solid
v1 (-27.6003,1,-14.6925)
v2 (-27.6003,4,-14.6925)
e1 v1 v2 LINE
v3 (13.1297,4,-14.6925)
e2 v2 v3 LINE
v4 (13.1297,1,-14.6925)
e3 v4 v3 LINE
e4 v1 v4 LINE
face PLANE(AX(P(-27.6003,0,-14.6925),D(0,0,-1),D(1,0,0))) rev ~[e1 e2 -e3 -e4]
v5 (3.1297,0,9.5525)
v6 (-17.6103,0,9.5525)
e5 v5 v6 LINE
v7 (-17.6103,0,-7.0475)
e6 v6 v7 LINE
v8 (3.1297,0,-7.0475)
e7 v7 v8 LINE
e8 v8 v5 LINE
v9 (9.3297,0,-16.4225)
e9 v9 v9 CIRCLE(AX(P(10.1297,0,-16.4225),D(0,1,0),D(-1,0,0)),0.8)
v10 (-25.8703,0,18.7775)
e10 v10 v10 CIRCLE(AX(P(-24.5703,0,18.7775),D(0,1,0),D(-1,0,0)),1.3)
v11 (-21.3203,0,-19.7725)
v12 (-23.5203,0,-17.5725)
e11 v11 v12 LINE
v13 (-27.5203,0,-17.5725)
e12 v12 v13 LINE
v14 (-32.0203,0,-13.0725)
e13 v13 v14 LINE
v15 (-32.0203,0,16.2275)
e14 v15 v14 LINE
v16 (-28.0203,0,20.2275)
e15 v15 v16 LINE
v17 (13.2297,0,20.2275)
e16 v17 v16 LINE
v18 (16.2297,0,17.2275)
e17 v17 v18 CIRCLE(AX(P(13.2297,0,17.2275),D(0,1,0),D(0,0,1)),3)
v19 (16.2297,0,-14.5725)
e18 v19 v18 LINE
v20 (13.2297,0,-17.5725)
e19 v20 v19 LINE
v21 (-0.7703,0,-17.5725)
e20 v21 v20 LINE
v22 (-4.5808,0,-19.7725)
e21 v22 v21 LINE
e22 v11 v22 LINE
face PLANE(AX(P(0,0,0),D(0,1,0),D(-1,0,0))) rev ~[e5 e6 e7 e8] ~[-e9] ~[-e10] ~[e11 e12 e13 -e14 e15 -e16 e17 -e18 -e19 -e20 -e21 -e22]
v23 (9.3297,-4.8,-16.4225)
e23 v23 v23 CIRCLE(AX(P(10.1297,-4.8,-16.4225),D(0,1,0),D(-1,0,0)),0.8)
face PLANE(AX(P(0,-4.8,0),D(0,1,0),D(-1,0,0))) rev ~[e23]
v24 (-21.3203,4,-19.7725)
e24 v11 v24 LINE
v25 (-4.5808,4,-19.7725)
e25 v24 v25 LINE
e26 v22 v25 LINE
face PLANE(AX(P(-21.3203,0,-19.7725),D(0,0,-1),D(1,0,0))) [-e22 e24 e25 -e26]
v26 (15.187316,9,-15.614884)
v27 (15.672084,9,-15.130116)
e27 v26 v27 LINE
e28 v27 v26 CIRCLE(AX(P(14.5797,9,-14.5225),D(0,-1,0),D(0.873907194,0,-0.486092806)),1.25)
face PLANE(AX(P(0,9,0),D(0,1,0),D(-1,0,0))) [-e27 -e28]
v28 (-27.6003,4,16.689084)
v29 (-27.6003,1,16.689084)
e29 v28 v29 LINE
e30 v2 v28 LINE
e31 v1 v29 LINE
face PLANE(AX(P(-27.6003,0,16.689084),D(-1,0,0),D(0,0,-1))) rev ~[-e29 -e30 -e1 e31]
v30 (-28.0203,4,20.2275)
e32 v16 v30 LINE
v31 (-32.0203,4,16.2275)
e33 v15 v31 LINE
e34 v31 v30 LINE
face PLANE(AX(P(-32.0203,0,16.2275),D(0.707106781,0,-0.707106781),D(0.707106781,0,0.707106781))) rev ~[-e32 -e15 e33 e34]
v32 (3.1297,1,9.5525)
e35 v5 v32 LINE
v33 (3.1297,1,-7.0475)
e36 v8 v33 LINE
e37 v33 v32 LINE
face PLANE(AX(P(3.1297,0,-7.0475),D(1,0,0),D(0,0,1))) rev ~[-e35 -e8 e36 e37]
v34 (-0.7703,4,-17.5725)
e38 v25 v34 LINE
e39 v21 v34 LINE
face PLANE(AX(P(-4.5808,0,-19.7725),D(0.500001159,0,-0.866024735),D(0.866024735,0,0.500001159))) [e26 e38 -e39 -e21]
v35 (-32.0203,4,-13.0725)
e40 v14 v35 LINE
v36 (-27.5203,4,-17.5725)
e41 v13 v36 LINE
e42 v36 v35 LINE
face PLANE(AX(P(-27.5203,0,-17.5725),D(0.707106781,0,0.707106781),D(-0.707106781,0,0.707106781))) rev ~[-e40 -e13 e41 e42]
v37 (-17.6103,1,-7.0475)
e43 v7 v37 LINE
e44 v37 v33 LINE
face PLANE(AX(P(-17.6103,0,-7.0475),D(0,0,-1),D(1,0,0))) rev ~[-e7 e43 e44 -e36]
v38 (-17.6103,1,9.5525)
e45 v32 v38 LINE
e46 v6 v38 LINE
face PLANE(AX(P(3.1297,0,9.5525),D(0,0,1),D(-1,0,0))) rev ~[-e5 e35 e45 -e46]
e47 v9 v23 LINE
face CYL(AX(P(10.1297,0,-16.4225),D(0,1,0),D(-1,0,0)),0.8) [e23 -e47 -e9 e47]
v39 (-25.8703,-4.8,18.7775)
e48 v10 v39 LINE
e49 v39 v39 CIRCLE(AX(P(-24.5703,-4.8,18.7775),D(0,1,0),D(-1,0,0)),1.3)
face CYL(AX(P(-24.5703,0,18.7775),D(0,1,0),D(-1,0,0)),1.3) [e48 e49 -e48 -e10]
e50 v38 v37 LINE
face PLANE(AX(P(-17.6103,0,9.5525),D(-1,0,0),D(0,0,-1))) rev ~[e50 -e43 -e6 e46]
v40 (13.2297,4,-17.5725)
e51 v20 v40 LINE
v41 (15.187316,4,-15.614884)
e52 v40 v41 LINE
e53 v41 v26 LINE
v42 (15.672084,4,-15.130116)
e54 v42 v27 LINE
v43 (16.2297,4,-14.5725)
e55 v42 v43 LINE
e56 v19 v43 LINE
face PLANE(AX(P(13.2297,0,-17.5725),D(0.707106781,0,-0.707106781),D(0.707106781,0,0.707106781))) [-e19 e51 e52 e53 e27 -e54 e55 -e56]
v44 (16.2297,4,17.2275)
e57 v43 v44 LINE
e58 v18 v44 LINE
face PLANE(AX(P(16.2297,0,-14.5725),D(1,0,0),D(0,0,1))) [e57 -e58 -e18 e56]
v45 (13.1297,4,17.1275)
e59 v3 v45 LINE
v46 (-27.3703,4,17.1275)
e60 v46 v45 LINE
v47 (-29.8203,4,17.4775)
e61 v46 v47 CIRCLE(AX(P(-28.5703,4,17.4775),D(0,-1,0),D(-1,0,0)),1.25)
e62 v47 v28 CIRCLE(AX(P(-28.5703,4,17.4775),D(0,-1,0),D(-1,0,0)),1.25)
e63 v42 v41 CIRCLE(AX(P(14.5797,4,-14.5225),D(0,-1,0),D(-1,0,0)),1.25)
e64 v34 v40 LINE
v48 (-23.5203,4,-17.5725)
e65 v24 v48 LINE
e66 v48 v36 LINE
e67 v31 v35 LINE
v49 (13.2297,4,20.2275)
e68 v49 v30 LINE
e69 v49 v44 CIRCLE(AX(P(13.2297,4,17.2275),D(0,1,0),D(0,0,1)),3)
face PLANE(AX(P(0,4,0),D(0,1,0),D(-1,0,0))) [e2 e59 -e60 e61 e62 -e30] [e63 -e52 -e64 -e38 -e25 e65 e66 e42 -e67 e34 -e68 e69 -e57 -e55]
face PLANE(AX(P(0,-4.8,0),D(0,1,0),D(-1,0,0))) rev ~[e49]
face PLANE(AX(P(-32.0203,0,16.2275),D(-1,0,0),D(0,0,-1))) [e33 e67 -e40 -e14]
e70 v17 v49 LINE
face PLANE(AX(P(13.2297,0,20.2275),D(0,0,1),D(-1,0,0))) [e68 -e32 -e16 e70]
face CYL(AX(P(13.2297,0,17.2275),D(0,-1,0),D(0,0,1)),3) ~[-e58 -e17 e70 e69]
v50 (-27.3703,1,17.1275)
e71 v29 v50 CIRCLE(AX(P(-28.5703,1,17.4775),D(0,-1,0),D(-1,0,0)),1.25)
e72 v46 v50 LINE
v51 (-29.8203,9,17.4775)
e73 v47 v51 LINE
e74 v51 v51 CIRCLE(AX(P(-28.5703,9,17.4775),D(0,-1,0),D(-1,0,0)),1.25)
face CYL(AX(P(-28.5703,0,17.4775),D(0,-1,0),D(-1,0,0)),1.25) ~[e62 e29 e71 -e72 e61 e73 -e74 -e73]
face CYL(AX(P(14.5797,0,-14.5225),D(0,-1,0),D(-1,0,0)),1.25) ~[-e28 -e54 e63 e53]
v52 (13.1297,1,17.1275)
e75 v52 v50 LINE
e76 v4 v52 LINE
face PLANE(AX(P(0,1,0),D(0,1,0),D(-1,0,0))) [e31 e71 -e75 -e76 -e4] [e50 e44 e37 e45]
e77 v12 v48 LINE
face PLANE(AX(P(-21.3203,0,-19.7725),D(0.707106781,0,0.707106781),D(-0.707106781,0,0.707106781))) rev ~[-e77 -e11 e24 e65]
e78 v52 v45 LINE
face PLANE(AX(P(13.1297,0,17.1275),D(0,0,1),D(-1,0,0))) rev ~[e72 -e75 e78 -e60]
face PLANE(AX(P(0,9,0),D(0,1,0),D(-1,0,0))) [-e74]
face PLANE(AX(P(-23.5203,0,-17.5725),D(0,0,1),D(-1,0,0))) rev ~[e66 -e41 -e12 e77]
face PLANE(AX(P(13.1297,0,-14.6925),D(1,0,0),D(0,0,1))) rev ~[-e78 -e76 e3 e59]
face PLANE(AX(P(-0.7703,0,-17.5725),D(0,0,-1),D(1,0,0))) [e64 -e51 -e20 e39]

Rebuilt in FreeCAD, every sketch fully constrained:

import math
import FreeCAD as App
import Part
import Sketcher
Q = App.Units.Quantity

doc = App.newDocument("Part")
body = doc.addObject("PartDesign::Body", "Body")

# Sketch on XZ plane
sketch1 = doc.addObject("Sketcher::SketchObject", "Sketch")
body.addObject(sketch1)
sketch1.AttachmentSupport = (doc.XZ_Plane, [""])
sketch1.MapMode = "FlatFace"
sketch1.addGeometry(Part.LineSegment(App.Vector(-4.6, -19.8, 0), App.Vector(-21.3, -19.8, 0)), False)
sketch1.addGeometry(Part.LineSegment(App.Vector(-21.3, -19.8, 0), App.Vector(-23.5, -17.6, 0)), False)
sketch1.addGeometry(Part.LineSegment(App.Vector(-23.5, -17.6, 0), App.Vector(-27.5, -17.6, 0)), False)
sketch1.addGeometry(Part.LineSegment(App.Vector(-27.5, -17.6, 0), App.Vector(-32, -13.1, 0)), False)
sketch1.addGeometry(Part.LineSegment(App.Vector(-32, -13.1, 0), App.Vector(-32, 16.2, 0)), False)
sketch1.addGeometry(Part.LineSegment(App.Vector(-32, 16.2, 0), App.Vector(-28, 20.2, 0)), False)
sketch1.addGeometry(Part.LineSegment(App.Vector(-28, 20.2, 0), App.Vector(13.2, 20.2, 0)), False)
sketch1.addGeometry(Part.ArcOfCircle(Part.Circle(App.Vector(13.2, 17.2, 0), App.Vector(0, 0, 1), 3), math.radians(0), math.radians(90)), False)
sketch1.addGeometry(Part.LineSegment(App.Vector(16.2, 17.2, 0), App.Vector(16.2, -14.6, 0)), False)
sketch1.addGeometry(Part.LineSegment(App.Vector(16.2, -14.6, 0), App.Vector(13.2, -17.6, 0)), False)
sketch1.addGeometry(Part.LineSegment(App.Vector(13.2, -17.6, 0), App.Vector(-0.8, -17.6, 0)), False)
sketch1.addGeometry(Part.LineSegment(App.Vector(-0.8, -17.6, 0), App.Vector(-4.6, -19.8, 0)), False)
sketch1.addGeometry(Part.LineSegment(App.Vector(13.1, -14.7, 0), App.Vector(13.1, 17.1, 0)), False)
sketch1.addGeometry(Part.LineSegment(App.Vector(13.1, 17.1, 0), App.Vector(-27.6, 17.1, 0)), False)
sketch1.addGeometry(Part.LineSegment(App.Vector(-27.6, 17.1, 0), App.Vector(-27.6, -14.7, 0)), False)
sketch1.addGeometry(Part.LineSegment(App.Vector(-27.6, -14.7, 0), App.Vector(13.1, -14.7, 0)), False)
sketch1.addConstraint(Sketcher.Constraint("Coincident", 0, 2, 1, 1))
sketch1.addConstraint(Sketcher.Constraint("Coincident", 1, 2, 2, 1))
sketch1.addConstraint(Sketcher.Constraint("Coincident", 2, 2, 3, 1))
sketch1.addConstraint(Sketcher.Constraint("Coincident", 3, 2, 4, 1))
sketch1.addConstraint(Sketcher.Constraint("Coincident", 4, 2, 5, 1))
sketch1.addConstraint(Sketcher.Constraint("Coincident", 5, 2, 6, 1))
sketch1.addConstraint(Sketcher.Constraint("Tangent", 6, 2, 7, 2))
sketch1.addConstraint(Sketcher.Constraint("Tangent", 7, 1, 8, 1))
sketch1.addConstraint(Sketcher.Constraint("Coincident", 8, 2, 9, 1))
sketch1.addConstraint(Sketcher.Constraint("Coincident", 9, 2, 10, 1))
sketch1.addConstraint(Sketcher.Constraint("Coincident", 10, 2, 11, 1))
sketch1.addConstraint(Sketcher.Constraint("Coincident", 11, 2, 0, 1))
sketch1.addConstraint(Sketcher.Constraint("Coincident", 12, 2, 13, 1))
sketch1.addConstraint(Sketcher.Constraint("Coincident", 13, 2, 14, 1))
sketch1.addConstraint(Sketcher.Constraint("Coincident", 14, 2, 15, 1))
sketch1.addConstraint(Sketcher.Constraint("Coincident", 15, 2, 12, 1))
sketch1.addConstraint(Sketcher.Constraint("Horizontal", 0))
sketch1.addConstraint(Sketcher.Constraint("Horizontal", 2))
sketch1.addConstraint(Sketcher.Constraint("Vertical", 4))
sketch1.addConstraint(Sketcher.Constraint("Horizontal", 6))
sketch1.addConstraint(Sketcher.Constraint("Vertical", 8))
sketch1.addConstraint(Sketcher.Constraint("Horizontal", 10))
sketch1.addConstraint(Sketcher.Constraint("Vertical", 12))
sketch1.addConstraint(Sketcher.Constraint("Horizontal", 13))
sketch1.addConstraint(Sketcher.Constraint("Vertical", 14))
sketch1.addConstraint(Sketcher.Constraint("Horizontal", 15))
sketch1.addConstraint(Sketcher.Constraint("Parallel", 1, 3))
sketch1.addConstraint(Sketcher.Constraint("Perpendicular", 3, 5))
sketch1.addConstraint(Sketcher.Constraint("Parallel", 5, 9))
sketch1.addConstraint(Sketcher.Constraint("Horizontal", 2, 2, 9, 2))
sketch1.addConstraint(Sketcher.Constraint("Vertical", 6, 2, 9, 2))
sketch1.addConstraint(Sketcher.Constraint("Radius", 7, Q("3 mm")))
sketch1.addConstraint(Sketcher.Constraint("DistanceX", 2, 2, 2, 1, Q("4 mm")))
sketch1.addConstraint(Sketcher.Constraint("Angle", 5, Q("45 deg")))
sketch1.addConstraint(Sketcher.Constraint("DistanceX", 4, 2, 5, 2, Q("4 mm")))
sketch1.addConstraint(Sketcher.Constraint("DistanceY", 0, 2, 5, 2, Q("40 mm")))
sketch1.addConstraint(Sketcher.Constraint("DistanceX", 10, 2, 8, 2, Q("17 mm")))
sketch1.addConstraint(Sketcher.Constraint("DistanceX", 13, 2, 13, 1, Q("40.73 mm")))
sketch1.addConstraint(Sketcher.Constraint("DistanceY", 12, 1, 12, 2, Q("31.82 mm")))
sketch1.addConstraint(Sketcher.Constraint("DistanceX", 1, 2, 0, 2, Q("2.2 mm")))
sketch1.addConstraint(Sketcher.Constraint("DistanceX", 3, 2, 2, 2, Q("4.5 mm")))
sketch1.addConstraint(Sketcher.Constraint("DistanceY", 12, 2, 6, 2, Q("3.1 mm")))
sketch1.addConstraint(Sketcher.Constraint("DistanceX", 12, 2, 7, 1, Q("3.1 mm")))
sketch1.addConstraint(Sketcher.Constraint("Angle", 11, Q("-150 deg")))
sketch1.addConstraint(Sketcher.Constraint("DistanceX", 4, 2, 7, 1, Q("48.25 mm")))
sketch1.addConstraint(Sketcher.Constraint("DistanceX", -1, 1, 7, 3, Q("13.2297 mm")))
sketch1.addConstraint(Sketcher.Constraint("DistanceY", -1, 1, 7, 3, Q("17.2275 mm")))
pad1 = doc.addObject("PartDesign::Pad", "Pad")
body.addObject(pad1)
pad1.Profile = sketch1
pad1.Length = 4
pad1.Reversed = True

# Sketch on XZ plane
sketch2 = doc.addObject("Sketcher::SketchObject", "Sketch001")
body.addObject(sketch2)
sketch2.AttachmentSupport = (doc.XZ_Plane, [""])
sketch2.MapMode = "FlatFace"
sketch2.addGeometry(Part.LineSegment(App.Vector(13, 17, 0), App.Vector(13, -15, 0)), False)
sketch2.addGeometry(Part.LineSegment(App.Vector(13, -15, 0), App.Vector(-28, -15, 0)), False)
sketch2.addGeometry(Part.LineSegment(App.Vector(-28, -15, 0), App.Vector(-28, 17, 0)), False)
sketch2.addGeometry(Part.LineSegment(App.Vector(-28, 17, 0), App.Vector(13, 17, 0)), False)
sketch2.addGeometry(Part.LineSegment(App.Vector(-18, -7, 0), App.Vector(3, -7, 0)), False)
sketch2.addGeometry(Part.LineSegment(App.Vector(3, -7, 0), App.Vector(3, 10, 0)), False)
sketch2.addGeometry(Part.LineSegment(App.Vector(3, 10, 0), App.Vector(-18, 10, 0)), False)
sketch2.addGeometry(Part.LineSegment(App.Vector(-18, 10, 0), App.Vector(-18, -7, 0)), False)
sketch2.addConstraint(Sketcher.Constraint("Coincident", 0, 2, 1, 1))
sketch2.addConstraint(Sketcher.Constraint("Coincident", 1, 2, 2, 1))
sketch2.addConstraint(Sketcher.Constraint("Coincident", 2, 2, 3, 1))
sketch2.addConstraint(Sketcher.Constraint("Coincident", 3, 2, 0, 1))
sketch2.addConstraint(Sketcher.Constraint("Coincident", 4, 2, 5, 1))
sketch2.addConstraint(Sketcher.Constraint("Coincident", 5, 2, 6, 1))
sketch2.addConstraint(Sketcher.Constraint("Coincident", 6, 2, 7, 1))
sketch2.addConstraint(Sketcher.Constraint("Coincident", 7, 2, 4, 1))
sketch2.addConstraint(Sketcher.Constraint("Vertical", 0))
sketch2.addConstraint(Sketcher.Constraint("Horizontal", 1))
sketch2.addConstraint(Sketcher.Constraint("Vertical", 2))
sketch2.addConstraint(Sketcher.Constraint("Horizontal", 3))
sketch2.addConstraint(Sketcher.Constraint("Horizontal", 4))
sketch2.addConstraint(Sketcher.Constraint("Vertical", 5))
sketch2.addConstraint(Sketcher.Constraint("Horizontal", 6))
sketch2.addConstraint(Sketcher.Constraint("Vertical", 7))
sketch2.addConstraint(Sketcher.Constraint("DistanceX", 1, 2, 1, 1, Q("40.73 mm")))
sketch2.addConstraint(Sketcher.Constraint("DistanceY", 0, 2, 0, 1, Q("31.82 mm")))
sketch2.addConstraint(Sketcher.Constraint("DistanceY", 5, 1, 5, 2, Q("16.6 mm")))
sketch2.addConstraint(Sketcher.Constraint("DistanceX", 4, 2, 0, 2, Q("10 mm")))
sketch2.addConstraint(Sketcher.Constraint("DistanceX", 4, 1, 4, 2, Q("20.74 mm")))
sketch2.addConstraint(Sketcher.Constraint("DistanceY", 0, 2, 4, 2, Q("7.645 mm")))
sketch2.addConstraint(Sketcher.Constraint("DistanceX", -1, 1, 0, 2, Q("13.1297 mm")))
sketch2.addConstraint(Sketcher.Constraint("DistanceY", 0, 2, -1, 1, Q("14.6925 mm")))
pad2 = doc.addObject("PartDesign::Pad", "Pad001")
body.addObject(pad2)
pad2.Profile = sketch2
pad2.Length = 1
pad2.Reversed = True

# Sketch on XZ plane
sketch3 = doc.addObject("Sketcher::SketchObject", "Sketch002")
body.addObject(sketch3)
sketch3.AttachmentSupport = (doc.XZ_Plane, [""])
sketch3.MapMode = "FlatFace"
sketch3.addGeometry(Part.Circle(App.Vector(-24.6, 18.8, 0), App.Vector(0, 0, 1), 1.3), False)
sketch3.addGeometry(Part.Circle(App.Vector(10.1, -16.4, 0), App.Vector(0, 0, 1), 0.8), False)
sketch3.addConstraint(Sketcher.Constraint("Diameter", 0, Q("2.6 mm")))
sketch3.addConstraint(Sketcher.Constraint("Diameter", 1, Q("1.6 mm")))
sketch3.addConstraint(Sketcher.Constraint("DistanceX", 0, 3, 1, 3, Q("34.7 mm")))
sketch3.addConstraint(Sketcher.Constraint("DistanceY", 1, 3, 0, 3, Q("35.2 mm")))
sketch3.addConstraint(Sketcher.Constraint("DistanceX", 0, 3, -1, 1, Q("24.5703 mm")))
sketch3.addConstraint(Sketcher.Constraint("DistanceY", -1, 1, 0, 3, Q("18.7775 mm")))
pad3 = doc.addObject("PartDesign::Pad", "Pad002")
body.addObject(pad3)
pad3.Profile = sketch3
pad3.Length = 4.8

# Sketch on XZ plane
sketch4 = doc.addObject("Sketcher::SketchObject", "Sketch003")
body.addObject(sketch4)
sketch4.AttachmentSupport = (doc.XZ_Plane, [""])
sketch4.MapMode = "FlatFace"
sketch4.addGeometry(Part.LineSegment(App.Vector(15.7, -15.1, 0), App.Vector(15.2, -15.6, 0)), False)
sketch4.addGeometry(Part.ArcOfCircle(Part.Circle(App.Vector(14.6, -14.5, 0), App.Vector(0, 0, 1), 1.2), math.radians(-29), math.radians(299)), False)
sketch4.addGeometry(Part.Circle(App.Vector(-28.6, 17.5, 0), App.Vector(0, 0, 1), 1.2), False)
sketch4.addConstraint(Sketcher.Constraint("Coincident", 0, 1, 1, 1))
sketch4.addConstraint(Sketcher.Constraint("Coincident", 1, 2, 0, 2))
sketch4.addConstraint(Sketcher.Constraint("Equal", 1, 2))
sketch4.addConstraint(Sketcher.Constraint("Diameter", 2, Q("2.5 mm")))
sketch4.addConstraint(Sketcher.Constraint("Angle", 0, Q("-135 deg")))
sketch4.addConstraint(Sketcher.Constraint("DistanceY", 1, 3, 2, 3, Q("32 mm")))
sketch4.addConstraint(Sketcher.Constraint("DistanceY", 0, 1, -1, 1, Q("15.13 mm")))
sketch4.addConstraint(Sketcher.Constraint("DistanceX", 2, 3, 1, 3, Q("43.15 mm")))
sketch4.addConstraint(Sketcher.Constraint("DistanceX", -1, 1, 0, 1, Q("15.672 mm")))
sketch4.addConstraint(Sketcher.Constraint("DistanceY", 1, 2, -1, 1, Q("15.615 mm")))
pad4 = doc.addObject("PartDesign::Pad", "Pad003")
body.addObject(pad4)
pad4.Profile = sketch4
pad4.Length = 9
pad4.Reversed = True

doc.recompute()
